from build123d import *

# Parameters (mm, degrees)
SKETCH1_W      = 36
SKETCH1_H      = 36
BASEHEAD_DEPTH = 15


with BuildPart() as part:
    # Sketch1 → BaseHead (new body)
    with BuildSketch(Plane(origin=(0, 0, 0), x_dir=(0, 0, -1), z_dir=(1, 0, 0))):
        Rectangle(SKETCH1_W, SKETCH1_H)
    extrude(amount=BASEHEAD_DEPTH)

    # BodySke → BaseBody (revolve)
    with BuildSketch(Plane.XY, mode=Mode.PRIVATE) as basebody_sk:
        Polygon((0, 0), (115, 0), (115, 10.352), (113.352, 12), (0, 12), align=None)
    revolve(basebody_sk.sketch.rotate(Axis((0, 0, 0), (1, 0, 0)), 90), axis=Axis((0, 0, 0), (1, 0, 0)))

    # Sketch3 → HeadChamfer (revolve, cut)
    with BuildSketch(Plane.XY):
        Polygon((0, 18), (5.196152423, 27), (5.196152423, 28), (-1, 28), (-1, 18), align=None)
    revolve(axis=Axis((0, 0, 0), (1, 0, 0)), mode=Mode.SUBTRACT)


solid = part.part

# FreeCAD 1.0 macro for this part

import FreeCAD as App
import Part
import Sketcher

V = App.Vector
Q = App.Units.Quantity

doc = App.newDocument("Part")
params = doc.addObject("Spreadsheet::Sheet", "Params")
for row, (alias, value) in enumerate([
    ("sketch1_width", "36 mm"),
    ("pad1_length", "15 mm"),
    ("sketch2_width", "115 mm"),
    ("sketch2_height", "12 mm"),
    ("revolution_angle", "360 deg"),
    ("sketch3_width", "1 mm"),
    ("sketch3_height", "10 mm"),
    ("groove_angle", "360 deg"),
], start=1):
    params.set(f"A{row}", alias)
    params.set(f"B{row}", "=" + value)
    params.setAlias(f"B{row}", alias)

body = doc.addObject("PartDesign::Body", "Body")

# Sketch on YZ plane
sketch1 = body.newObject("Sketcher::SketchObject", "Sketch")
sketch1.AttachmentSupport = (doc.getObject("YZ_Plane"), [""])
sketch1.MapMode = "FlatFace"
sketch1.addGeometry(Part.LineSegment(V(18, 18, 0), V(-18, 18, 0)), False)
sketch1.addGeometry(Part.LineSegment(V(-18, 18, 0), V(-18, -18, 0)), False)
sketch1.addGeometry(Part.LineSegment(V(-18, -18, 0), V(18, -18, 0)), False)
sketch1.addGeometry(Part.LineSegment(V(18, -18, 0), V(18, 18, 0)), False)
sketch1.addConstraint(Sketcher.Constraint("Coincident", 0, 2, 1, 1))
sketch1.addConstraint(Sketcher.Constraint("Coincident", 1, 2, 2, 1))
sketch1.addConstraint(Sketcher.Constraint("Coincident", 2, 2, 3, 1))
sketch1.addConstraint(Sketcher.Constraint("Coincident", 3, 2, 0, 1))
sketch1.addConstraint(Sketcher.Constraint("Horizontal", 0))
sketch1.addConstraint(Sketcher.Constraint("Vertical", 1))
sketch1.addConstraint(Sketcher.Constraint("Horizontal", 2))
sketch1.addConstraint(Sketcher.Constraint("Vertical", 3))
sketch1.addConstraint(Sketcher.Constraint("Symmetric", 0, 2, 2, 2, -1, 1))
sketch1.addConstraint(Sketcher.Constraint("Equal", 2, 1))
sketch1.addConstraint(Sketcher.Constraint("DistanceX", 0, 2, 0, 1, 36.0))
sketch1.setExpression("Constraints[10]", "Params.sketch1_width")
pad1 = body.newObject("PartDesign::Pad", "Pad")
pad1.Profile = sketch1
pad1.setExpression("Length", "Params.pad1_length")

# Sketch on XY plane
sketch2 = body.newObject("Sketcher::SketchObject", "Sketch001")
sketch2.AttachmentSupport = (doc.getObject("XY_Plane"), [""])
sketch2.MapMode = "FlatFace"
sketch2.addGeometry(Part.LineSegment(V(0, 0, 0), V(115, 0, 0)), False)
sketch2.addGeometry(Part.LineSegment(V(115, 0, 0), V(115, 10.4, 0)), False)
sketch2.addGeometry(Part.LineSegment(V(115, 10.4, 0), V(113.4, 12, 0)), False)
sketch2.addGeometry(Part.LineSegment(V(113.4, 12, 0), V(0, 12, 0)), False)
sketch2.addGeometry(Part.LineSegment(V(0, 12, 0), V(0, 0, 0)), False)
sketch2.addConstraint(Sketcher.Constraint("Coincident", 0, 2, 1, 1))
sketch2.addConstraint(Sketcher.Constraint("Coincident", 1, 2, 2, 1))
sketch2.addConstraint(Sketcher.Constraint("Coincident", 2, 2, 3, 1))
sketch2.addConstraint(Sketcher.Constraint("Coincident", 3, 2, 4, 1))
sketch2.addConstraint(Sketcher.Constraint("Coincident", 4, 2, 0, 1))
sketch2.addConstraint(Sketcher.Constraint("Horizontal", 0))
sketch2.addConstraint(Sketcher.Constraint("Vertical", 1))
sketch2.addConstraint(Sketcher.Constraint("Horizontal", 3))
sketch2.addConstraint(Sketcher.Constraint("Vertical", 4))
sketch2.addConstraint(Sketcher.Constraint("Coincident", 4, 2, -1, 1))
sketch2.addConstraint(Sketcher.Constraint("DistanceX", 0, 1, 0, 2, 115.0))
sketch2.addConstraint(Sketcher.Constraint("DistanceY", 4, 2, 4, 1, 12.0))
sketch2.addConstraint(Sketcher.Constraint("Angle", 2, Q("135 deg")))
sketch2.addConstraint(Sketcher.Constraint("DistanceX", 3, 2, 3, 1, 113.352))
sketch2.setExpression("Constraints[10]", "Params.sketch2_width")
sketch2.setExpression("Constraints[11]", "Params.sketch2_height")
revolution = body.newObject("PartDesign::Revolution", "Revolution")
revolution.Profile = sketch2
revolution.ReferenceAxis = (sketch2, ["H_Axis"])
revolution.setExpression("Angle", "Params.revolution_angle")

# Sketch on XY plane
sketch3 = body.newObject("Sketcher::SketchObject", "Sketch002")
sketch3.AttachmentSupport = (doc.getObject("XY_Plane"), [""])
sketch3.MapMode = "FlatFace"
sketch3.addGeometry(Part.LineSegment(V(0, 18, 0), V(5.2, 27, 0)), False)
sketch3.addGeometry(Part.LineSegment(V(5.2, 27, 0), V(5.2, 28, 0)), False)
sketch3.addGeometry(Part.LineSegment(V(5.2, 28, 0), V(-1, 28, 0)), False)
sketch3.addGeometry(Part.LineSegment(V(-1, 28, 0), V(-1, 18, 0)), False)
sketch3.addGeometry(Part.LineSegment(V(-1, 18, 0), V(0, 18, 0)), False)
sketch3.addConstraint(Sketcher.Constraint("Coincident", 0, 2, 1, 1))
sketch3.addConstraint(Sketcher.Constraint("Coincident", 1, 2, 2, 1))
sketch3.addConstraint(Sketcher.Constraint("Coincident", 2, 2, 3, 1))
sketch3.addConstraint(Sketcher.Constraint("Coincident", 3, 2, 4, 1))
sketch3.addConstraint(Sketcher.Constraint("Coincident", 4, 2, 0, 1))
sketch3.addConstraint(Sketcher.Constraint("Vertical", 1))
sketch3.addConstraint(Sketcher.Constraint("Horizontal", 2))
sketch3.addConstraint(Sketcher.Constraint("Vertical", 3))
sketch3.addConstraint(Sketcher.Constraint("Horizontal", 4))
sketch3.addConstraint(Sketcher.Constraint("PointOnObject", 4, 2, -2))
sketch3.addConstraint(Sketcher.Constraint("Equal", 4, 1))
sketch3.addConstraint(Sketcher.Constraint("DistanceX", 4, 1, 4, 2, 1.0))
sketch3.addConstraint(Sketcher.Constraint("DistanceY", 3, 2, 3, 1, 10.0))
sketch3.addConstraint(Sketcher.Constraint("Angle", 0, Q("60 deg")))
sketch3.addConstraint(Sketcher.Constraint("DistanceY", -1, 1, 0, 2, 27.0))
sketch3.setExpression("Constraints[11]", "Params.sketch3_width")
sketch3.setExpression("Constraints[12]", "Params.sketch3_height")
groove = body.newObject("PartDesign::Groove", "Groove")
groove.Profile = sketch3
groove.ReferenceAxis = (sketch3, ["H_Axis"])
groove.setExpression("Angle", "Params.groove_angle")

doc.recompute()
